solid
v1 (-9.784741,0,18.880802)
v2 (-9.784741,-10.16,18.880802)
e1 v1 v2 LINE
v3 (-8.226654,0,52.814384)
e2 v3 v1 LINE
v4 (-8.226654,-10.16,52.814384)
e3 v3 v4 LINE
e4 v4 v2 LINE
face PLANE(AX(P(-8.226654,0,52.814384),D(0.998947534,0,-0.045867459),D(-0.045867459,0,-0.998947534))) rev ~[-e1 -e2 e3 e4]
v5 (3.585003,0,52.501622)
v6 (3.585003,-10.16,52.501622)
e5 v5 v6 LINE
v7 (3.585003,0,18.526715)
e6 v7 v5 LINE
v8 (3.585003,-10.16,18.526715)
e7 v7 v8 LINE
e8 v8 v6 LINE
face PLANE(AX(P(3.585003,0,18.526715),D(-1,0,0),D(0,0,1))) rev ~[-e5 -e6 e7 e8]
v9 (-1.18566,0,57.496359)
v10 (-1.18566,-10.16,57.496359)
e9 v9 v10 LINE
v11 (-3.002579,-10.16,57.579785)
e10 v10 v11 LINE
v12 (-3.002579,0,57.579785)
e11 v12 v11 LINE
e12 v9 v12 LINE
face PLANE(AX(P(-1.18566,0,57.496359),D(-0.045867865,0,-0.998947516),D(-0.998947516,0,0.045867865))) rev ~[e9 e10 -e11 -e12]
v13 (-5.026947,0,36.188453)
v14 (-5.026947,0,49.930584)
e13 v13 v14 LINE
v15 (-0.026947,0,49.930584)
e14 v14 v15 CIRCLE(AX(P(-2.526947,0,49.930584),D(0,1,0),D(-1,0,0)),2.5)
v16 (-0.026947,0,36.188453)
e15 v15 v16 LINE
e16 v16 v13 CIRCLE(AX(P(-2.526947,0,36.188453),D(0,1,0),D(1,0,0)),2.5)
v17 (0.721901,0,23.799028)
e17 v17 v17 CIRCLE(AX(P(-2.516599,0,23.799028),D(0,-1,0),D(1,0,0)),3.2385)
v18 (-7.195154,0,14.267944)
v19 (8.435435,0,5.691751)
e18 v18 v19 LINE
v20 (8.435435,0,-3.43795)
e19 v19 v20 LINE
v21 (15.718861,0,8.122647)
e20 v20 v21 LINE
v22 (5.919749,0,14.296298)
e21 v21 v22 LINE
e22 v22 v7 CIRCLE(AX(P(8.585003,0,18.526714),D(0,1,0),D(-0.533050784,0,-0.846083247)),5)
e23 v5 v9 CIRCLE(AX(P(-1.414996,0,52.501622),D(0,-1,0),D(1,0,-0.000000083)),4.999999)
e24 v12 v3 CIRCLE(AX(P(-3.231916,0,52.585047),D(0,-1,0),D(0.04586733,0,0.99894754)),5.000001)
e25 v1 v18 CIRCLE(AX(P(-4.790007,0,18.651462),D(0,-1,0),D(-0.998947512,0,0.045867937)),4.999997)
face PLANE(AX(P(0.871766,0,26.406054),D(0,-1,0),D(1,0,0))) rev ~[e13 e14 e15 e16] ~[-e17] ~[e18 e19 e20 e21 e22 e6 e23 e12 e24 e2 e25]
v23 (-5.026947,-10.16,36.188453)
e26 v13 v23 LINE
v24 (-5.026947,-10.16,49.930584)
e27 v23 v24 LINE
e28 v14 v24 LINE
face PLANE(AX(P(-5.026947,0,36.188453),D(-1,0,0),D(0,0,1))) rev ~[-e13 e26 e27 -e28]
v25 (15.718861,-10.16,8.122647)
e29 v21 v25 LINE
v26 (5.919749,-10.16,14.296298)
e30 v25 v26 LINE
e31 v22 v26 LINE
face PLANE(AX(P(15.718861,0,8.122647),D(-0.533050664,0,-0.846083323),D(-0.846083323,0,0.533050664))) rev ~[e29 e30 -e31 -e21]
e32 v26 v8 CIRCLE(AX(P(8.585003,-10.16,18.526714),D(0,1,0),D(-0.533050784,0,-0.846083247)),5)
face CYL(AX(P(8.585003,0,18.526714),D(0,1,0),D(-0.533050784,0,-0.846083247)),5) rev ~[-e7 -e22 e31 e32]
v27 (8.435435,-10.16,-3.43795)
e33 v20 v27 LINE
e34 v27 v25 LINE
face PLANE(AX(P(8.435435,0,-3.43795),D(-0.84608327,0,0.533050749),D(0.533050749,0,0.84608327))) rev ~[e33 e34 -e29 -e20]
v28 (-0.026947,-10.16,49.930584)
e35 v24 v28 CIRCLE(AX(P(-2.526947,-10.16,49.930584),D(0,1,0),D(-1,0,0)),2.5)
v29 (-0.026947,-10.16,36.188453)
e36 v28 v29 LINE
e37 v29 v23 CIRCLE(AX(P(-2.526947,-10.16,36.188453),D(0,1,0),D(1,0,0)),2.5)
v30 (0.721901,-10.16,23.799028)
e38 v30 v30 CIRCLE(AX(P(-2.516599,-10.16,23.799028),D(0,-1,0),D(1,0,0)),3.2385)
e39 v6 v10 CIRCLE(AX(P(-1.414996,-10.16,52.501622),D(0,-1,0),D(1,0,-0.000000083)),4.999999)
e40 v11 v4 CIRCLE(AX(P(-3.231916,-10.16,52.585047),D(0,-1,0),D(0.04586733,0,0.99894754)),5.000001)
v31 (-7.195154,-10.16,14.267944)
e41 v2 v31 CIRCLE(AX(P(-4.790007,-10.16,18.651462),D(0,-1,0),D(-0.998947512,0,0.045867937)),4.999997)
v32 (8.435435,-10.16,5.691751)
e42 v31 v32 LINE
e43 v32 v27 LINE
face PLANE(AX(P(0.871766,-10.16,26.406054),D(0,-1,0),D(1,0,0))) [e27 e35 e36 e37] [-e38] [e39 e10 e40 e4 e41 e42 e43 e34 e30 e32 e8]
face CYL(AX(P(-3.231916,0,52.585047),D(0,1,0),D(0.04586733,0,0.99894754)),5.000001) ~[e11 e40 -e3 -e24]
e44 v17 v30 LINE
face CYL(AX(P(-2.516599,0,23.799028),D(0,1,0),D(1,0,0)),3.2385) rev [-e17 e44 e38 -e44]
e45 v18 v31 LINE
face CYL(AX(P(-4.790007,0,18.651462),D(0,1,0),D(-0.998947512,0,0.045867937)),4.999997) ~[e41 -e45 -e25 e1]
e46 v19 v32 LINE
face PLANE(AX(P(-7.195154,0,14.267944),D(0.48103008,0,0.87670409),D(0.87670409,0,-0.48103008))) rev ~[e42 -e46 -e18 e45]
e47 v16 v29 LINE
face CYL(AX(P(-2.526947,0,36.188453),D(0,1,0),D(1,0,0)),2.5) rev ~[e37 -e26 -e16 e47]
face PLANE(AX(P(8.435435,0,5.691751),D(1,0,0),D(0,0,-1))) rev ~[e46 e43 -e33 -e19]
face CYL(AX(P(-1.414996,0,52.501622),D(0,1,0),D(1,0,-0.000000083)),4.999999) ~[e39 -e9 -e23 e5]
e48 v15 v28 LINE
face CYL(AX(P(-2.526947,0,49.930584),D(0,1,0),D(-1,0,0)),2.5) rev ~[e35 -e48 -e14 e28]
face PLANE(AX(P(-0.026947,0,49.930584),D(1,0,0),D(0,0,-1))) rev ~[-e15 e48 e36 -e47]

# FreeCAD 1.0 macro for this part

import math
import FreeCAD as App
import Part
import Sketcher

V = App.Vector
Q = App.Units.Quantity

doc = App.newDocument("Part")
body = doc.addObject("PartDesign::Body", "Body")

sketch1 = body.newObject("Sketcher::SketchObject", "Sketch")
sketch1.AttachmentSupport = (doc.getObject("XZ_Plane"), [""])
sketch1.MapMode = "FlatFace"
sketch1.addGeometry([
    Part.LineSegment(V(3.6, 18.5, 0), V(3.6, 52.5, 0)),
    Part.ArcOfCircle(Part.Circle(V(-1.4, 52.5, 0), V(0, 0, 1), 5), math.radians(0), math.radians(87)),
    Part.LineSegment(V(-1.2, 57.5, 0), V(-3, 57.6, 0)),
    Part.ArcOfCircle(Part.Circle(V(-3.2, 52.6, 0), V(0, 0, 1), 5), math.radians(87), math.radians(177)),
    Part.LineSegment(V(-8.2, 52.8, 0), V(-9.8, 18.9, 0)),
    Part.ArcOfCircle(Part.Circle(V(-4.8, 18.7, 0), V(0, 0, 1), 5), math.radians(177), math.radians(241)),
    Part.LineSegment(V(-7.2, 14.3, 0), V(8.4, 5.7, 0)),
    Part.LineSegment(V(8.4, 5.7, 0), V(8.4, -3.4, 0)),
    Part.LineSegment(V(8.4, -3.4, 0), V(15.7, 8.1, 0)),
    Part.LineSegment(V(15.7, 8.1, 0), V(5.9, 14.3, 0)),
    Part.ArcOfCircle(Part.Circle(V(8.6, 18.5, 0), V(0, 0, 1), 5), math.radians(180), math.radians(238)),
    Part.Circle(V(-2.5, 23.8, 0), V(0, 0, 1), 3.2),
    Part.ArcOfCircle(Part.Circle(V(-2.5, 36.2, 0), V(0, 0, 1), 2.5), math.radians(180), math.radians(360)),
    Part.LineSegment(V(-5, 36.2, 0), V(-5, 49.9, 0)),
    Part.ArcOfCircle(Part.Circle(V(-2.5, 49.9, 0), V(0, 0, 1), 2.5), math.radians(0), math.radians(180)),
    Part.LineSegment(V(0, 49.9, 0), V(0, 36.2, 0)),
], False)
sketch1.addConstraint([
    Sketcher.Constraint("Tangent", 0, 2, 1, 1),
    Sketcher.Constraint("Tangent", 1, 2, 2, 1),
    Sketcher.Constraint("Tangent", 2, 2, 3, 1),
    Sketcher.Constraint("Tangent", 3, 2, 4, 1),
    Sketcher.Constraint("Tangent", 4, 2, 5, 1),
    Sketcher.Constraint("Tangent", 5, 2, 6, 1),
    Sketcher.Constraint("Coincident", 6, 2, 7, 1),
    Sketcher.Constraint("Coincident", 7, 2, 8, 1),
    Sketcher.Constraint("Coincident", 8, 2, 9, 1),
    Sketcher.Constraint("Tangent", 9, 2, 10, 2),
    Sketcher.Constraint("Tangent", 10, 1, 0, 1),
    Sketcher.Constraint("Tangent", 12, 1, 13, 1),
    Sketcher.Constraint("Tangent", 13, 2, 14, 2),
    Sketcher.Constraint("Tangent", 14, 1, 15, 1),
    Sketcher.Constraint("Tangent", 15, 2, 12, 2),
    Sketcher.Constraint("Vertical", 0),
    Sketcher.Constraint("Vertical", 7),
    Sketcher.Constraint("Vertical", 13),
    Sketcher.Constraint("Vertical", 15),
    Sketcher.Constraint("Equal", 1, 3),
    Sketcher.Constraint("Equal", 3, 10),
    Sketcher.Constraint("Perpendicular", 2, 4),
    Sketcher.Constraint("Perpendicular", 8, 9),
    Sketcher.Constraint("Radius", 1, Q("4.999999 mm")),
    Sketcher.Constraint("Radius", 12, Q("2.5 mm")),
    Sketcher.Constraint("Diameter", 11, Q("6.477 mm")),
    Sketcher.Constraint("DistanceY", 7, 2, 7, 1, Q("9.129701 mm")),
    Sketcher.Constraint("Radius", 5, Q("4.999997 mm")),
    Sketcher.Constraint("DistanceY", 13, 1, 13, 2, Q("13.742131 mm")),
    Sketcher.Constraint("DistanceX", 11, 3, -1, 1, Q("2.516599 mm")),
    Sketcher.Constraint("DistanceY", -1, 1, 4, 2, Q("18.880802 mm")),
    Sketcher.Constraint("DistanceX", 11, 3, 10, 3, Q("11.101602 mm")),
    Sketcher.Constraint("DistanceY", 14, 3, 2, 2, Q("7.649201 mm")),
    Sketcher.Constraint("DistanceY", 14, 3, 3, 2, Q("2.8838 mm")),
    Sketcher.Constraint("Distance", 6, Q("17.828808 mm")),
    Sketcher.Constraint("DistanceY", 0, 1, 0, 2, Q("33.974907 mm")),
    Sketcher.Constraint("DistanceY", -1, 1, 11, 3, Q("23.799028 mm")),
    Sketcher.Constraint("DistanceY", -1, 1, 0, 2, Q("52.501622 mm")),
    Sketcher.Constraint("DistanceX", 2, 2, -1, 1, Q("3.002579 mm")),
    Sketcher.Constraint("DistanceY", -1, 1, 6, 2, Q("5.691751 mm")),
    Sketcher.Constraint("DistanceX", -1, 1, 8, 2, Q("15.718861 mm")),
    Sketcher.Constraint("DistanceX", 12, 3, 11, 3, Q("0.010348 mm")),
])
pad1 = body.newObject("PartDesign::Pad", "Pad")
pad1.Profile = sketch1
pad1.Length = 10.16

doc.recompute()
